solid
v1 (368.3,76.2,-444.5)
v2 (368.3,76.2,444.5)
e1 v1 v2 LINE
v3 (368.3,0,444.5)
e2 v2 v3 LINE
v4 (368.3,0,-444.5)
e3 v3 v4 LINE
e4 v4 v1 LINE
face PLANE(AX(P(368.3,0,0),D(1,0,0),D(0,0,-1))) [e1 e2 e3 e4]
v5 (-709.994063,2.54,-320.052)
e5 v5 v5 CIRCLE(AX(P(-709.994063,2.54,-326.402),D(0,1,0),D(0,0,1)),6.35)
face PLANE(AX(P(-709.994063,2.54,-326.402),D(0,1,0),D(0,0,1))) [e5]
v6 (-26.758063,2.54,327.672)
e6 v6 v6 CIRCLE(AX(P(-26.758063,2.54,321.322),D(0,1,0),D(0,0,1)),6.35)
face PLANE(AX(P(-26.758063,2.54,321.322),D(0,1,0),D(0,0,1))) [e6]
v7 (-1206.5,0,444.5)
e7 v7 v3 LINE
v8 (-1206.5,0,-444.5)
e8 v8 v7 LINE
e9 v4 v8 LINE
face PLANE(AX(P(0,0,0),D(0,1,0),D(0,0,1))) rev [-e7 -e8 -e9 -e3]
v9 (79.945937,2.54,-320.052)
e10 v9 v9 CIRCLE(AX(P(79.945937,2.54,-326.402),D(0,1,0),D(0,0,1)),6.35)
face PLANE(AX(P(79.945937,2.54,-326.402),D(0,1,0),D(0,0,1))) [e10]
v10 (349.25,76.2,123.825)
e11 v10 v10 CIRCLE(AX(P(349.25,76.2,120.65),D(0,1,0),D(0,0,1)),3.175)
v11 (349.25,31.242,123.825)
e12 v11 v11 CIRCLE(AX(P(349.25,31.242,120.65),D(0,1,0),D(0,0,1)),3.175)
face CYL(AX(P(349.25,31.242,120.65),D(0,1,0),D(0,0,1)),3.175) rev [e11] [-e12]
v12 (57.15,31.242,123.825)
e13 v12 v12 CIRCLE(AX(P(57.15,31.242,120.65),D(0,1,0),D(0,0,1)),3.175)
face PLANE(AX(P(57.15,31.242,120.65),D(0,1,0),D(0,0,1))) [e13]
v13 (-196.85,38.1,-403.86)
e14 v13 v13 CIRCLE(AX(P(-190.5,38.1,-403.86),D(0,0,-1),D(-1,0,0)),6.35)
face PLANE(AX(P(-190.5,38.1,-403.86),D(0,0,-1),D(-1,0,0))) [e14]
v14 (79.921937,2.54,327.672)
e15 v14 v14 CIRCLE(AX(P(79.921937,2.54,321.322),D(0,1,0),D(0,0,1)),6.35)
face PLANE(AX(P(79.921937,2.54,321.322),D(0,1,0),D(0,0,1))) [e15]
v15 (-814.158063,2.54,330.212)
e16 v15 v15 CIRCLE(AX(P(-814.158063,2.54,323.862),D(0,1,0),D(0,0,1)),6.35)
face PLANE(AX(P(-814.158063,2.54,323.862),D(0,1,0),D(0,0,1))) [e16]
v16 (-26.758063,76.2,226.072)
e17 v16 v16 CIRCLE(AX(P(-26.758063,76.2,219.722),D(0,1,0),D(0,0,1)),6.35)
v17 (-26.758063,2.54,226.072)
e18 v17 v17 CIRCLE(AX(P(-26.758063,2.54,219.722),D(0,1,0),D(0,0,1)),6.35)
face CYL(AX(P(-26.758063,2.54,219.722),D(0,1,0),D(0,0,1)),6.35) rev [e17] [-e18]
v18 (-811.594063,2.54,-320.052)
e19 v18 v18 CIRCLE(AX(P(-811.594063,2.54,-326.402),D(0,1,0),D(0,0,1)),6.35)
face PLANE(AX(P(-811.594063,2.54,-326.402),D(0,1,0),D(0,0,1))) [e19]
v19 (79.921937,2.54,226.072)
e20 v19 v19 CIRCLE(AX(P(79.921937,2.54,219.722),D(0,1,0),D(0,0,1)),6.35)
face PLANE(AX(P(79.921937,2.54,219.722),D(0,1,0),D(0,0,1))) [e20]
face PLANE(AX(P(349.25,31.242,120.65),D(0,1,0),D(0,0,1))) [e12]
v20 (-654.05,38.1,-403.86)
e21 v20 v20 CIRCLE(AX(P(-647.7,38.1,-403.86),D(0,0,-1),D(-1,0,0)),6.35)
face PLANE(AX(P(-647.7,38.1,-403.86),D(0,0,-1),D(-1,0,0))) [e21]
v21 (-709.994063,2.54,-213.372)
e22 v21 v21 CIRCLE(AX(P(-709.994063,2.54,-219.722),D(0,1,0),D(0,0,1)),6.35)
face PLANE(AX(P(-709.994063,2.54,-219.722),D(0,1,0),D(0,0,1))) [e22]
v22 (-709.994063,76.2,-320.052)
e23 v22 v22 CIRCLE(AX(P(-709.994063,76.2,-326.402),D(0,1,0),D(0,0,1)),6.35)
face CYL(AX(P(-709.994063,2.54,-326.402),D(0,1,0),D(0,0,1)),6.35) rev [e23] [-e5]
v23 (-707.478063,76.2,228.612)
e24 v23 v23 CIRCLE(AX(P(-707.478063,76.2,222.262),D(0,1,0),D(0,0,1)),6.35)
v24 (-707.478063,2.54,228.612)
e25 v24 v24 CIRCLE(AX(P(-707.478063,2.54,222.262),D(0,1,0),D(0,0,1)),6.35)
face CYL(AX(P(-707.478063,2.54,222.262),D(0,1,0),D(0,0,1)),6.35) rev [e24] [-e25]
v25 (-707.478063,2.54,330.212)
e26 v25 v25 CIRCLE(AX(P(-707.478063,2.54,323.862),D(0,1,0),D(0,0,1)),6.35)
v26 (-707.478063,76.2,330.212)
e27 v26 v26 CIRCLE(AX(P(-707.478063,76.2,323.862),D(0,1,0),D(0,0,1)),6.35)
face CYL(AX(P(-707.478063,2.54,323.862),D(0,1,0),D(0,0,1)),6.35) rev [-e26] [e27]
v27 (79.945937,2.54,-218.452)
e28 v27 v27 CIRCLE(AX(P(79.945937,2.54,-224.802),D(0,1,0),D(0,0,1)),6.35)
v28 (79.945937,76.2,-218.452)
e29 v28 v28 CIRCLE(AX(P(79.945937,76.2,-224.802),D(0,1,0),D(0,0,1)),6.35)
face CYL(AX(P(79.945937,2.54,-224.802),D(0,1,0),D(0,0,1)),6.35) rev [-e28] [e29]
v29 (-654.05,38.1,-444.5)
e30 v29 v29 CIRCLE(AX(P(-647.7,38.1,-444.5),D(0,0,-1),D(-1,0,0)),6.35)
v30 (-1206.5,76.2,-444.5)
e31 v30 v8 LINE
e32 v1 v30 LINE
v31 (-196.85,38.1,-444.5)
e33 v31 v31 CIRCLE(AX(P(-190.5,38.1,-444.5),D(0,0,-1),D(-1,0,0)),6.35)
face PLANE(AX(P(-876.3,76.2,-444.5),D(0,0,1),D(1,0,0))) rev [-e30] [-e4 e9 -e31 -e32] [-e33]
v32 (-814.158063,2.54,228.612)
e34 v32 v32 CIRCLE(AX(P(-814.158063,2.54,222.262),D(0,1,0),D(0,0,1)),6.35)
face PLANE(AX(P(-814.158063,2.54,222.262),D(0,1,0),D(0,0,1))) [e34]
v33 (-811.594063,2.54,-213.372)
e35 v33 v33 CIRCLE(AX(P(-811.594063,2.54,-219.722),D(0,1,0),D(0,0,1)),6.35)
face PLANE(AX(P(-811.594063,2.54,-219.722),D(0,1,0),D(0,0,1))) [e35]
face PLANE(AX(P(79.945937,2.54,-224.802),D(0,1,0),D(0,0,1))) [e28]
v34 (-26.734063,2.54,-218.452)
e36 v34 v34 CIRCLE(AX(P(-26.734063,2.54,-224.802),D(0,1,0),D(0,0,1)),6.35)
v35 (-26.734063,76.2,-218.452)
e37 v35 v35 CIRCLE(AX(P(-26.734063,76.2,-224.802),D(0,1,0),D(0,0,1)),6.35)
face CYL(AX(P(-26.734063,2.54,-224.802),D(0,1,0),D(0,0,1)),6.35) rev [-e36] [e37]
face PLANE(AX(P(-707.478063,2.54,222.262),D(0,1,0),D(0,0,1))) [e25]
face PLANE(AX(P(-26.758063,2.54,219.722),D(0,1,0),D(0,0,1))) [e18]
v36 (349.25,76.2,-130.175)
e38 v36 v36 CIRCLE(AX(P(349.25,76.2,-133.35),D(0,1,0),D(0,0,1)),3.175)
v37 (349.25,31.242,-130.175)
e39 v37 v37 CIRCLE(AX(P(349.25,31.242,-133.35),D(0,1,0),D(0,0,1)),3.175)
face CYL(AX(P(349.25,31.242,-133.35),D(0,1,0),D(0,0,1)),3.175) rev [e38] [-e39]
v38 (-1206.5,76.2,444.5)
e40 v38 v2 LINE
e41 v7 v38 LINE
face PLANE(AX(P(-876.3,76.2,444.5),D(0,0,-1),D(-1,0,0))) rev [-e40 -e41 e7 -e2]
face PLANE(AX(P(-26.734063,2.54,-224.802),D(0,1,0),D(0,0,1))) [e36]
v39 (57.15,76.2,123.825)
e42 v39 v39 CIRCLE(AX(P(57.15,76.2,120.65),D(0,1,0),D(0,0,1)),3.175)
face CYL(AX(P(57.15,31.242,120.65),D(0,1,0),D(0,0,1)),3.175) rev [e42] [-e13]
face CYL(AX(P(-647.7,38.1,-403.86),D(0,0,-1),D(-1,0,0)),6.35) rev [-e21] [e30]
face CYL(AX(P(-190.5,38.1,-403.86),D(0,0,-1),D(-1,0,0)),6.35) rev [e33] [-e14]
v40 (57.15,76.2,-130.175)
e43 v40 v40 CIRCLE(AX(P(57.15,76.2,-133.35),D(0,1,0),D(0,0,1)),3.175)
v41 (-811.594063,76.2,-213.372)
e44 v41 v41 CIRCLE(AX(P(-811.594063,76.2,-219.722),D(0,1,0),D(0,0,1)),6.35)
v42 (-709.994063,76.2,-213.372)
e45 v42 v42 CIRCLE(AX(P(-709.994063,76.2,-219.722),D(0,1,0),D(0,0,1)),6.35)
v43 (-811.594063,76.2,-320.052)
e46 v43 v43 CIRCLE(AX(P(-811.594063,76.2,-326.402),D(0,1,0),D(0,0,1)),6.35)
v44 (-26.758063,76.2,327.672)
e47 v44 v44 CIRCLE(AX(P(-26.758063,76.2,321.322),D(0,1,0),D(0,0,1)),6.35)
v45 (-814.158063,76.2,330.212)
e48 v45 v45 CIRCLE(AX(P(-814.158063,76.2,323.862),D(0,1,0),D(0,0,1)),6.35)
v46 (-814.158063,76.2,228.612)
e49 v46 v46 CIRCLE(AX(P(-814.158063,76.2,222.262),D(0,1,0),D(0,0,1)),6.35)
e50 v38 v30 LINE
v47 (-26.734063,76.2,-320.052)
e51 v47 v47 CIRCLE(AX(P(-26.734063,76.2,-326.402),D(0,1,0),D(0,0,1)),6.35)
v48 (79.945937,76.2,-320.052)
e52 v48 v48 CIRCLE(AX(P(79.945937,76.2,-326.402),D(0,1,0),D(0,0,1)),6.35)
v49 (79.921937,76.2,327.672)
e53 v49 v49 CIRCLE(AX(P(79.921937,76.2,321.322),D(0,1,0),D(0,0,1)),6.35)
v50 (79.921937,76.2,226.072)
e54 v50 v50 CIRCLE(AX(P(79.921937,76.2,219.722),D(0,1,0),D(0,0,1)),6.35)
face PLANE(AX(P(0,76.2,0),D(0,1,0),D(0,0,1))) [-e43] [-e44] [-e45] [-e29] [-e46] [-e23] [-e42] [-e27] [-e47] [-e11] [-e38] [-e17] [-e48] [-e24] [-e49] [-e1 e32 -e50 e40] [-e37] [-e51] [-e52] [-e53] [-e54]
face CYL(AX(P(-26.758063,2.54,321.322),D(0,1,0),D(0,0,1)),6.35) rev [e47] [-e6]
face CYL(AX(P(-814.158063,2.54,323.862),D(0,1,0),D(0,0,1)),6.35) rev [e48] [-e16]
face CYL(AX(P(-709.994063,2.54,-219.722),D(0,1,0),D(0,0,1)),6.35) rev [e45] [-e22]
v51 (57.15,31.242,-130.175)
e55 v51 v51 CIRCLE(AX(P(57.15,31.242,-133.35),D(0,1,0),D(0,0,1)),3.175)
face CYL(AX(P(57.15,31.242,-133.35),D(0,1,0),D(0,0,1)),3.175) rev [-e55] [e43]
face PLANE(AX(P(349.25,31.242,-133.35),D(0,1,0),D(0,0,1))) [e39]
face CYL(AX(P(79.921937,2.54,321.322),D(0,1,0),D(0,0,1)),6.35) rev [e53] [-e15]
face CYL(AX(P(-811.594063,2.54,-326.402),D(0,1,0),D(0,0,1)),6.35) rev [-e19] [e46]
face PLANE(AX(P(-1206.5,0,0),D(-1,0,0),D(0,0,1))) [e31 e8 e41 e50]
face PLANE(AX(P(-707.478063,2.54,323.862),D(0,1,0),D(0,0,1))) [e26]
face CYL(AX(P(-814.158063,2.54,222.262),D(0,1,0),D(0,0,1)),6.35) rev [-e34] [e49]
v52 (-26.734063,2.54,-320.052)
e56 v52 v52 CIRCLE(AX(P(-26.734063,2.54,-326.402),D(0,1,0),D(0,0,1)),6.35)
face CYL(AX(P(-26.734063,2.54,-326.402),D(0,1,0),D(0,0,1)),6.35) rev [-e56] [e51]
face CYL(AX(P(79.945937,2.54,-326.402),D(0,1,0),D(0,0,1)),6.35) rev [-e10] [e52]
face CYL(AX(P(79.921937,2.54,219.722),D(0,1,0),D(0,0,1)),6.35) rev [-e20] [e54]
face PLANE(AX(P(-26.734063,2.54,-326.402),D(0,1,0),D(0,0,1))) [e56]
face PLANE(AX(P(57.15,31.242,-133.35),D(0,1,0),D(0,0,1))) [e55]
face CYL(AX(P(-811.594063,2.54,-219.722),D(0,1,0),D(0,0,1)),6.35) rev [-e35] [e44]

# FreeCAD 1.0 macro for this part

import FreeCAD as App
import Part
import Sketcher

V = App.Vector
Q = App.Units.Quantity


def add_polygon(sketch, points):
    """Adds a closed chain of lines whose ends are joined by coincident constraints."""
    first, n = sketch.GeometryCount, len(points)
    for a, b in zip(points, points[1:] + points[:1]):
        sketch.addGeometry(Part.LineSegment(App.Vector(*a, 0), App.Vector(*b, 0)), False)
    for i in range(n):
        sketch.addConstraint(Sketcher.Constraint("Coincident", first + i, 2, first + (i + 1) % n, 1))

doc = App.newDocument("Part")
params = doc.addObject("Spreadsheet::Sheet", "Params")
for row, (alias, value) in enumerate([
    ("sketch1_width", "69 in"),
    ("sketch1_height", "35 in"),
    ("pad1_length", "3 in"),
    ("sketch2_width", "3 in"),
    ("sketch2_height", "35 in"),
    ("pad2_length", "13 in"),
    ("sketch3_width", "3 in"),
    ("sketch3_height", "35 in"),
    ("pocket1_length", "20 in"),
    ("sketch4_diameter", "0.5 in"),
    ("pocket2_length", "2.9 in"),
    ("sketch5_diameter", "0.5 in"),
    ("pocket3_length", "1.6 in"),
    ("sketch6_diameter", "0.25 in"),
    ("pocket4_length", "1.77 in"),
], start=1):
    params.set(f"A{row}", alias)
    params.set(f"B{row}", "=" + value)
    params.setAlias(f"B{row}", alias)

body = doc.addObject("PartDesign::Body", "Body")

# Sketch on XZ plane
sketch1 = doc.addObject("Sketcher::SketchObject", "Sketch")
body.addObject(sketch1)
sketch1.AttachmentSupport = (doc.XZ_Plane, [""])
sketch1.MapMode = "FlatFace"
add_polygon(sketch1, [(-876, -444), (-876, 444), (876, 444), (876, -444)])  # lines 0-3
sketch1.addConstraint(Sketcher.Constraint("Vertical", 0))
sketch1.addConstraint(Sketcher.Constraint("Horizontal", 1))
sketch1.addConstraint(Sketcher.Constraint("Vertical", 2))
sketch1.addConstraint(Sketcher.Constraint("Horizontal", 3))
sketch1.addConstraint(Sketcher.Constraint("Symmetric", 0, 2, 2, 2, -1, 1))
sketch1.addConstraint(Sketcher.Constraint("DistanceX", 1, 1, 1, 2, Q("69 in")))
sketch1.addConstraint(Sketcher.Constraint("DistanceY", 0, 1, 0, 2, Q("35 in")))
sketch1.setExpression("Constraints[9]", "Params.sketch1_width")
sketch1.setExpression("Constraints[10]", "Params.sketch1_height")
pad1 = doc.addObject("PartDesign::Pad", "Pad")
body.addObject(pad1)
pad1.Profile = sketch1
pad1.setExpression("Length", "Params.pad1_length")
pad1.Reversed = True

# Sketch on YZ plane
sketch2 = doc.addObject("Sketcher::SketchObject", "Sketch001")
body.addObject(sketch2)
sketch2.AttachmentSupport = (doc.YZ_Plane, [""])
sketch2.MapMode = "FlatFace"
sketch2.AttachmentOffset = App.Placement(V(0, 0, -34.5 * 25.4), App.Rotation())
add_polygon(sketch2, [(76, -444), (0, -444), (0, 444), (76, 444)])  # lines 0-3
sketch2.addConstraint(Sketcher.Constraint("Horizontal", 0))
sketch2.addConstraint(Sketcher.Constraint("Vertical", 1))
sketch2.addConstraint(Sketcher.Constraint("Horizontal", 2))
sketch2.addConstraint(Sketcher.Constraint("Vertical", 3))
sketch2.addConstraint(Sketcher.Constraint("Symmetric", 0, 2, 1, 2, -1, 1))
sketch2.addConstraint(Sketcher.Constraint("DistanceX", 0, 2, 0, 1, Q("3 in")))
sketch2.addConstraint(Sketcher.Constraint("DistanceY", 1, 1, 1, 2, Q("35 in")))
sketch2.setExpression("Constraints[9]", "Params.sketch2_width")
sketch2.setExpression("Constraints[10]", "Params.sketch2_height")
pad2 = doc.addObject("PartDesign::Pad", "Pad001")
body.addObject(pad2)
pad2.Profile = sketch2
pad2.setExpression("Length", "Params.pad2_length")
pad2.Reversed = True

# Sketch on YZ plane
sketch3 = doc.addObject("Sketcher::SketchObject", "Sketch002")
body.addObject(sketch3)
sketch3.AttachmentSupport = (doc.YZ_Plane, [""])
sketch3.MapMode = "FlatFace"
sketch3.AttachmentOffset = App.Placement(V(0, 0, 34.5 * 25.4), App.Rotation())
add_polygon(sketch3, [(76, 444), (0, 444), (0, -444), (76, -444)])  # lines 0-3
sketch3.addConstraint(Sketcher.Constraint("Horizontal", 0))
sketch3.addConstraint(Sketcher.Constraint("Vertical", 1))
sketch3.addConstraint(Sketcher.Constraint("Horizontal", 2))
sketch3.addConstraint(Sketcher.Constraint("Vertical", 3))
sketch3.addConstraint(Sketcher.Constraint("Symmetric", 0, 2, 1, 2, -1, 1))
sketch3.addConstraint(Sketcher.Constraint("DistanceX", 0, 2, 0, 1, Q("3 in")))
sketch3.addConstraint(Sketcher.Constraint("DistanceY", 1, 2, 1, 1, Q("35 in")))
sketch3.setExpression("Constraints[9]", "Params.sketch3_width")
sketch3.setExpression("Constraints[10]", "Params.sketch3_height")
pocket1 = doc.addObject("PartDesign::Pocket", "Pocket")
body.addObject(pocket1)
pocket1.Profile = sketch3
pocket1.setExpression("Length", "Params.pocket1_length")

# Sketch on XZ plane
sketch4 = doc.addObject("Sketcher::SketchObject", "Sketch003")
body.addObject(sketch4)
sketch4.AttachmentSupport = (doc.XZ_Plane, [""])
sketch4.MapMode = "FlatFace"
sketch4.AttachmentOffset = App.Placement(V(0, 0, -3 * 25.4), App.Rotation())
sketch4.addGeometry(Part.Circle(V(-812, -220, 0), V(0, 0, 1), 6), False)
sketch4.addGeometry(Part.Circle(V(-812, -326, 0), V(0, 0, 1), 6), False)
sketch4.addGeometry(Part.Circle(V(-710, -326, 0), V(0, 0, 1), 6), False)
sketch4.addGeometry(Part.Circle(V(-710, -220, 0), V(0, 0, 1), 6), False)
sketch4.addGeometry(Part.Circle(V(-27, -326, 0), V(0, 0, 1), 6), False)
sketch4.addGeometry(Part.Circle(V(80, -326, 0), V(0, 0, 1), 6), False)
sketch4.addGeometry(Part.Circle(V(80, -225, 0), V(0, 0, 1), 6), False)
sketch4.addGeometry(Part.Circle(V(-27, -225, 0), V(0, 0, 1), 6), False)
sketch4.addGeometry(Part.Circle(V(-27, 220, 0), V(0, 0, 1), 6), False)
sketch4.addGeometry(Part.Circle(V(80, 220, 0), V(0, 0, 1), 6), False)
sketch4.addGeometry(Part.Circle(V(80, 321, 0), V(0, 0, 1), 6), False)
sketch4.addGeometry(Part.Circle(V(-27, 321, 0), V(0, 0, 1), 6), False)
sketch4.addGeometry(Part.Circle(V(-707, 222, 0), V(0, 0, 1), 6), False)
sketch4.addGeometry(Part.Circle(V(-707, 324, 0), V(0, 0, 1), 6), False)
sketch4.addGeometry(Part.Circle(V(-814, 324, 0), V(0, 0, 1), 6), False)
sketch4.addGeometry(Part.Circle(V(-814, 222, 0), V(0, 0, 1), 6), False)
sketch4.addConstraint(Sketcher.Constraint("Equal", 0, 1))
sketch4.addConstraint(Sketcher.Constraint("Equal", 1, 2))
sketch4.addConstraint(Sketcher.Constraint("Equal", 2, 3))
sketch4.addConstraint(Sketcher.Constraint("Equal", 3, 4))
sketch4.addConstraint(Sketcher.Constraint("Equal", 4, 5))
sketch4.addConstraint(Sketcher.Constraint("Equal", 5, 6))
sketch4.addConstraint(Sketcher.Constraint("Equal", 6, 7))
sketch4.addConstraint(Sketcher.Constraint("Equal", 7, 8))
sketch4.addConstraint(Sketcher.Constraint("Equal", 8, 9))
sketch4.addConstraint(Sketcher.Constraint("Equal", 9, 10))
sketch4.addConstraint(Sketcher.Constraint("Equal", 10, 11))
sketch4.addConstraint(Sketcher.Constraint("Equal", 11, 12))
sketch4.addConstraint(Sketcher.Constraint("Equal", 12, 13))
sketch4.addConstraint(Sketcher.Constraint("Equal", 13, 14))
sketch4.addConstraint(Sketcher.Constraint("Equal", 14, 15))
sketch4.addConstraint(Sketcher.Constraint("Horizontal", 1, 3, 2, 3))
sketch4.addConstraint(Sketcher.Constraint("Horizontal", 0, 3, 3, 3))
sketch4.addConstraint(Sketcher.Constraint("Horizontal", 2, 3, 4, 3))
sketch4.addConstraint(Sketcher.Constraint("Horizontal", 4, 3, 5, 3))
sketch4.addConstraint(Sketcher.Constraint("Horizontal", 6, 3, 7, 3))
sketch4.addConstraint(Sketcher.Constraint("Horizontal", 8, 3, 9, 3))
sketch4.addConstraint(Sketcher.Constraint("Horizontal", 10, 3, 11, 3))
sketch4.addConstraint(Sketcher.Constraint("Horizontal", 13, 3, 14, 3))
sketch4.addConstraint(Sketcher.Constraint("Horizontal", 12, 3, 15, 3))
sketch4.addConstraint(Sketcher.Constraint("Vertical", 0, 3, 1, 3))
sketch4.addConstraint(Sketcher.Constraint("Vertical", 2, 3, 3, 3))
sketch4.addConstraint(Sketcher.Constraint("Vertical", 5, 3, 6, 3))
sketch4.addConstraint(Sketcher.Constraint("Vertical", 4, 3, 7, 3))
sketch4.addConstraint(Sketcher.Constraint("Vertical", 9, 3, 10, 3))
sketch4.addConstraint(Sketcher.Constraint("Vertical", 8, 3, 11, 3))
sketch4.addConstraint(Sketcher.Constraint("Vertical", 12, 3, 13, 3))
sketch4.addConstraint(Sketcher.Constraint("Vertical", 14, 3, 15, 3))
sketch4.addConstraint(Sketcher.Constraint("Diameter", 0, Q("0.5 in")))
sketch4.addConstraint(Sketcher.Constraint("DistanceX", 1, 3, 2, 3, Q("4 in")))
sketch4.addConstraint(Sketcher.Constraint("DistanceY", 5, 3, 6, 3, Q("4 in")))
sketch4.addConstraint(Sketcher.Constraint("DistanceY", 9, 3, 10, 3, Q("4 in")))
sketch4.addConstraint(Sketcher.Constraint("DistanceY", 12, 3, 13, 3, Q("4 in")))
sketch4.addConstraint(Sketcher.Constraint("DistanceY", 1, 3, 0, 3, Q("4.2 in")))
sketch4.addConstraint(Sketcher.Constraint("DistanceX", 2, 3, 4, 3, Q("26.9 in")))
sketch4.addConstraint(Sketcher.Constraint("DistanceX", 4, 3, 5, 3, Q("4.2 in")))
sketch4.addConstraint(Sketcher.Constraint("DistanceX", 8, 3, 9, 3, Q("4.2 in")))
sketch4.addConstraint(Sketcher.Constraint("DistanceX", 12, 3, 8, 3, Q("26.8 in")))
sketch4.addConstraint(Sketcher.Constraint("DistanceY", 8, 3, 12, 3, Q("0.1 in")))
sketch4.addConstraint(Sketcher.Constraint("DistanceX", 14, 3, 13, 3, Q("4.2 in")))
sketch4.addConstraint(Sketcher.Constraint("DistanceY", 0, 3, -1, 1, Q("219.722 mm")))
sketch4.addConstraint(Sketcher.Constraint("DistanceY", -1, 1, 8, 3, Q("219.722 mm")))
sketch4.addConstraint(Sketcher.Constraint("DistanceX", 8, 3, 7, 3, Q("0.024 mm")))
sketch4.addConstraint(Sketcher.Constraint("DistanceX", 0, 3, -1, 1, Q("811.594063 mm")))
sketch4.setExpression("Constraints[32]", "Params.sketch4_diameter")
pocket2 = doc.addObject("PartDesign::Pocket", "Pocket001")
body.addObject(pocket2)
pocket2.Profile = sketch4
pocket2.setExpression("Length", "Params.pocket2_length")
pocket2.Reversed = True

# Sketch on XY plane
sketch5 = doc.addObject("Sketcher::SketchObject", "Sketch004")
body.addObject(sketch5)
sketch5.AttachmentSupport = (doc.XY_Plane, [""])
sketch5.MapMode = "FlatFace"
sketch5.AttachmentOffset = App.Placement(V(0, 0, -17.5 * 25.4), App.Rotation())
sketch5.addGeometry(Part.Circle(V(-190, 38, 0), V(0, 0, 1), 6), False)
sketch5.addGeometry(Part.Circle(V(-648, 38, 0), V(0, 0, 1), 6), False)
sketch5.addConstraint(Sketcher.Constraint("Equal", 0, 1))
sketch5.addConstraint(Sketcher.Constraint("Horizontal", 0, 3, 1, 3))
sketch5.addConstraint(Sketcher.Constraint("Diameter", 0, Q("0.5 in")))
sketch5.addConstraint(Sketcher.Constraint("DistanceX", 1, 3, 0, 3, Q("18 in")))
sketch5.addConstraint(Sketcher.Constraint("DistanceX", 0, 3, -1, 1, Q("7.5 in")))
sketch5.addConstraint(Sketcher.Constraint("DistanceY", -1, 1, 0, 3, Q("1.5 in")))
sketch5.setExpression("Constraints[2]", "Params.sketch5_diameter")
pocket3 = doc.addObject("PartDesign::Pocket", "Pocket002")
body.addObject(pocket3)
pocket3.Profile = sketch5
pocket3.setExpression("Length", "Params.pocket3_length")
pocket3.Reversed = True

# Sketch on XZ plane
sketch6 = doc.addObject("Sketcher::SketchObject", "Sketch005")
body.addObject(sketch6)
sketch6.AttachmentSupport = (doc.XZ_Plane, [""])
sketch6.MapMode = "FlatFace"
sketch6.AttachmentOffset = App.Placement(V(0, 0, -3 * 25.4), App.Rotation())
sketch6.addGeometry(Part.Circle(V(349.2, -133.3, 0), V(0, 0, 1), 3.2), False)
sketch6.addGeometry(Part.Circle(V(349.2, 120.7, 0), V(0, 0, 1), 3.2), False)
sketch6.addGeometry(Part.Circle(V(57.1, 120.7, 0), V(0, 0, 1), 3.2), False)
sketch6.addGeometry(Part.Circle(V(57.1, -133.3, 0), V(0, 0, 1), 3.2), False)
sketch6.addConstraint(Sketcher.Constraint("Equal", 0, 1))
sketch6.addConstraint(Sketcher.Constraint("Equal", 1, 2))
sketch6.addConstraint(Sketcher.Constraint("Equal", 2, 3))
sketch6.addConstraint(Sketcher.Constraint("Horizontal", 1, 3, 2, 3))
sketch6.addConstraint(Sketcher.Constraint("Horizontal", 0, 3, 3, 3))
sketch6.addConstraint(Sketcher.Constraint("Vertical", 0, 3, 1, 3))
sketch6.addConstraint(Sketcher.Constraint("Vertical", 2, 3, 3, 3))
sketch6.addConstraint(Sketcher.Constraint("Diameter", 0, Q("0.25 in")))
sketch6.addConstraint(Sketcher.Constraint("DistanceY", 0, 3, 1, 3, Q("10 in")))
sketch6.addConstraint(Sketcher.Constraint("DistanceX", 2, 3, 1, 3, Q("11.5 in")))
sketch6.addConstraint(Sketcher.Constraint("DistanceX", -1, 1, 0, 3, Q("13.75 in")))
sketch6.addConstraint(Sketcher.Constraint("DistanceY", 0, 3, -1, 1, Q("5.25 in")))
sketch6.setExpression("Constraints[7]", "Params.sketch6_diameter")
pocket4 = doc.addObject("PartDesign::Pocket", "Pocket003")
body.addObject(pocket4)
pocket4.Profile = sketch6
pocket4.setExpression("Length", "Params.pocket4_length")
pocket4.Reversed = True

doc.recompute()
